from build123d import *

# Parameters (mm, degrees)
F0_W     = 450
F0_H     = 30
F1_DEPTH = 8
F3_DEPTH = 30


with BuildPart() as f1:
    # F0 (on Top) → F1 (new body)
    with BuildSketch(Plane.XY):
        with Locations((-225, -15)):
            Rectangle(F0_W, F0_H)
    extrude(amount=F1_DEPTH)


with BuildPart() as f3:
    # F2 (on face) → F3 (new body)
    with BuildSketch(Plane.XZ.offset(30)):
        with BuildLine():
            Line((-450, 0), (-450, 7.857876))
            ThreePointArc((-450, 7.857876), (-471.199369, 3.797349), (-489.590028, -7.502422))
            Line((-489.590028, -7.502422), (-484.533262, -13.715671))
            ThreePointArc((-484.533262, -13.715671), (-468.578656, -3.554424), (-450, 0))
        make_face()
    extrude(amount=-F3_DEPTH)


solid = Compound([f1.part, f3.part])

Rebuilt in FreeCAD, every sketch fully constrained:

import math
import FreeCAD as App
import Part
import Sketcher

V = App.Vector
Q = App.Units.Quantity

doc = App.newDocument("Part")
body = doc.addObject("PartDesign::Body", "Body")

# Sketch on XY plane
sketch1 = doc.addObject("Sketcher::SketchObject", "Sketch")
body.addObject(sketch1)
sketch1.AttachmentSupport = (doc.XY_Plane, [""])
sketch1.MapMode = "FlatFace"
sketch1.addGeometry(Part.LineSegment(V(-450, 0, 0), V(-450, -30, 0)), False)
sketch1.addGeometry(Part.LineSegment(V(-450, -30, 0), V(0, -30, 0)), False)
sketch1.addGeometry(Part.LineSegment(V(0, -30, 0), V(0, 0, 0)), False)
sketch1.addGeometry(Part.LineSegment(V(0, 0, 0), V(-450, 0, 0)), False)
sketch1.addConstraint(Sketcher.Constraint("Coincident", 0, 2, 1, 1))
sketch1.addConstraint(Sketcher.Constraint("Coincident", 1, 2, 2, 1))
sketch1.addConstraint(Sketcher.Constraint("Coincident", 2, 2, 3, 1))
sketch1.addConstraint(Sketcher.Constraint("Coincident", 3, 2, 0, 1))
sketch1.addConstraint(Sketcher.Constraint("Vertical", 0))
sketch1.addConstraint(Sketcher.Constraint("Horizontal", 1))
sketch1.addConstraint(Sketcher.Constraint("Vertical", 2))
sketch1.addConstraint(Sketcher.Constraint("Horizontal", 3))
sketch1.addConstraint(Sketcher.Constraint("Coincident", 2, 2, -1, 1))
sketch1.addConstraint(Sketcher.Constraint("DistanceX", 1, 1, 1, 2, Q("450 mm")))
sketch1.addConstraint(Sketcher.Constraint("DistanceY", 0, 2, 0, 1, Q("30 mm")))
pad1 = doc.addObject("PartDesign::Pad", "Pad")
body.addObject(pad1)
pad1.Profile = sketch1
pad1.Length = 8
body2 = doc.addObject("PartDesign::Body", "Body001")

# Sketch on XZ plane
sketch2 = doc.addObject("Sketcher::SketchObject", "Sketch001")
body2.addObject(sketch2)
sketch2.AttachmentSupport = (doc.getObject("XZ_Plane001"), [""])
sketch2.MapMode = "FlatFace"
sketch2.AttachmentOffset = App.Placement(V(0, 0, 30), App.Rotation())
sketch2.addGeometry(Part.LineSegment(V(-450, 0, 0), V(-450, 8, 0)), False)
sketch2.addGeometry(Part.ArcOfCircle(Part.Circle(V(-449, -52, 0), V(0, 0, 1), 60), math.radians(90), math.radians(132)), False)
sketch2.addGeometry(Part.LineSegment(V(-490, -8, 0), V(-485, -14, 0)), False)
sketch2.addGeometry(Part.ArcOfCircle(Part.Circle(V(-450, -50, 0), V(0, 0, 1), 50), math.radians(90), math.radians(133)), False)
sketch2.addConstraint(Sketcher.Constraint("Coincident", 0, 2, 1, 1))
sketch2.addConstraint(Sketcher.Constraint("Coincident", 1, 2, 2, 1))
sketch2.addConstraint(Sketcher.Constraint("Coincident", 2, 2, 3, 2))
sketch2.addConstraint(Sketcher.Constraint("Coincident", 3, 1, 0, 1))
sketch2.addConstraint(Sketcher.Constraint("Vertical", 0))
sketch2.addConstraint(Sketcher.Constraint("PointOnObject", 3, 1, -1))
sketch2.addConstraint(Sketcher.Constraint("DistanceX", 0, 2, -1, 1, Q("450 mm")))
sketch2.addConstraint(Sketcher.Constraint("Radius", 1, Q("60.000008 mm")))
sketch2.addConstraint(Sketcher.Constraint("Radius", 3, Q("50.331684 mm")))
sketch2.addConstraint(Sketcher.Constraint("DistanceY", 1, 2, 0, 2, Q("15.360298 mm")))
sketch2.addConstraint(Sketcher.Constraint("Distance", 2, Q("8.010952 mm")))
sketch2.addConstraint(Sketcher.Constraint("DistanceY", 0, 1, 0, 2, Q("7.857876 mm")))
sketch2.addConstraint(Sketcher.Constraint("DistanceY", 1, 3, -1, 1, Q("52.14002 mm")))
sketch2.addConstraint(Sketcher.Constraint("DistanceX", 2, 2, -1, 1, Q("484.533262 mm")))
pad2 = doc.addObject("PartDesign::Pad", "Pad001")
body2.addObject(pad2)
pad2.Profile = sketch2
pad2.Length = 30
pad2.Reversed = True

doc.recompute()
